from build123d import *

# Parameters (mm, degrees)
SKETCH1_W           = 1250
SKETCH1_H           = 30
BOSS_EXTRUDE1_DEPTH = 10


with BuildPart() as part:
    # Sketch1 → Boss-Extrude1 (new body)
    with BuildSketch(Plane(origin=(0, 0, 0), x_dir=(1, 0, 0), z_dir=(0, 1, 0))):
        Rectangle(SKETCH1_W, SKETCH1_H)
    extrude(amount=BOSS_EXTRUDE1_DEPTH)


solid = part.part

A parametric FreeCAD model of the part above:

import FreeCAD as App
import Part
import Sketcher

V = App.Vector

doc = App.newDocument("Part")
body = doc.addObject("PartDesign::Body", "Body")

# Sketch on XZ plane
sketch1 = doc.addObject("Sketcher::SketchObject", "Sketch")
body.addObject(sketch1)
sketch1.AttachmentSupport = (doc.XZ_Plane, [""])
sketch1.MapMode = "FlatFace"
sketch1.addGeometry(Part.LineSegment(V(-625, -15, 0), V(-625, 15, 0)), False)
sketch1.addGeometry(Part.LineSegment(V(-625, 15, 0), V(625, 15, 0)), False)
sketch1.addGeometry(Part.LineSegment(V(625, 15, 0), V(625, -15, 0)), False)
sketch1.addGeometry(Part.LineSegment(V(625, -15, 0), V(-625, -15, 0)), False)
sketch1.addConstraint(Sketcher.Constraint("Coincident", 0, 2, 1, 1))
sketch1.addConstraint(Sketcher.Constraint("Coincident", 1, 2, 2, 1))
sketch1.addConstraint(Sketcher.Constraint("Coincident", 2, 2, 3, 1))
sketch1.addConstraint(Sketcher.Constraint("Coincident", 3, 2, 0, 1))
sketch1.addConstraint(Sketcher.Constraint("Vertical", 0))
sketch1.addConstraint(Sketcher.Constraint("Horizontal", 1))
sketch1.addConstraint(Sketcher.Constraint("Vertical", 2))
sketch1.addConstraint(Sketcher.Constraint("Horizontal", 3))
sketch1.addConstraint(Sketcher.Constraint("Symmetric", 0, 2, 2, 2, -1, 1))
sketch1.addConstraint(Sketcher.Constraint("DistanceX", 1, 1, 1, 2, 1250.0))
sketch1.addConstraint(Sketcher.Constraint("DistanceY", 0, 1, 0, 2, 30.0))
pad1 = doc.addObject("PartDesign::Pad", "Pad")
body.addObject(pad1)
pad1.Profile = sketch1
pad1.Length = 10
pad1.Reversed = True

doc.recompute()
